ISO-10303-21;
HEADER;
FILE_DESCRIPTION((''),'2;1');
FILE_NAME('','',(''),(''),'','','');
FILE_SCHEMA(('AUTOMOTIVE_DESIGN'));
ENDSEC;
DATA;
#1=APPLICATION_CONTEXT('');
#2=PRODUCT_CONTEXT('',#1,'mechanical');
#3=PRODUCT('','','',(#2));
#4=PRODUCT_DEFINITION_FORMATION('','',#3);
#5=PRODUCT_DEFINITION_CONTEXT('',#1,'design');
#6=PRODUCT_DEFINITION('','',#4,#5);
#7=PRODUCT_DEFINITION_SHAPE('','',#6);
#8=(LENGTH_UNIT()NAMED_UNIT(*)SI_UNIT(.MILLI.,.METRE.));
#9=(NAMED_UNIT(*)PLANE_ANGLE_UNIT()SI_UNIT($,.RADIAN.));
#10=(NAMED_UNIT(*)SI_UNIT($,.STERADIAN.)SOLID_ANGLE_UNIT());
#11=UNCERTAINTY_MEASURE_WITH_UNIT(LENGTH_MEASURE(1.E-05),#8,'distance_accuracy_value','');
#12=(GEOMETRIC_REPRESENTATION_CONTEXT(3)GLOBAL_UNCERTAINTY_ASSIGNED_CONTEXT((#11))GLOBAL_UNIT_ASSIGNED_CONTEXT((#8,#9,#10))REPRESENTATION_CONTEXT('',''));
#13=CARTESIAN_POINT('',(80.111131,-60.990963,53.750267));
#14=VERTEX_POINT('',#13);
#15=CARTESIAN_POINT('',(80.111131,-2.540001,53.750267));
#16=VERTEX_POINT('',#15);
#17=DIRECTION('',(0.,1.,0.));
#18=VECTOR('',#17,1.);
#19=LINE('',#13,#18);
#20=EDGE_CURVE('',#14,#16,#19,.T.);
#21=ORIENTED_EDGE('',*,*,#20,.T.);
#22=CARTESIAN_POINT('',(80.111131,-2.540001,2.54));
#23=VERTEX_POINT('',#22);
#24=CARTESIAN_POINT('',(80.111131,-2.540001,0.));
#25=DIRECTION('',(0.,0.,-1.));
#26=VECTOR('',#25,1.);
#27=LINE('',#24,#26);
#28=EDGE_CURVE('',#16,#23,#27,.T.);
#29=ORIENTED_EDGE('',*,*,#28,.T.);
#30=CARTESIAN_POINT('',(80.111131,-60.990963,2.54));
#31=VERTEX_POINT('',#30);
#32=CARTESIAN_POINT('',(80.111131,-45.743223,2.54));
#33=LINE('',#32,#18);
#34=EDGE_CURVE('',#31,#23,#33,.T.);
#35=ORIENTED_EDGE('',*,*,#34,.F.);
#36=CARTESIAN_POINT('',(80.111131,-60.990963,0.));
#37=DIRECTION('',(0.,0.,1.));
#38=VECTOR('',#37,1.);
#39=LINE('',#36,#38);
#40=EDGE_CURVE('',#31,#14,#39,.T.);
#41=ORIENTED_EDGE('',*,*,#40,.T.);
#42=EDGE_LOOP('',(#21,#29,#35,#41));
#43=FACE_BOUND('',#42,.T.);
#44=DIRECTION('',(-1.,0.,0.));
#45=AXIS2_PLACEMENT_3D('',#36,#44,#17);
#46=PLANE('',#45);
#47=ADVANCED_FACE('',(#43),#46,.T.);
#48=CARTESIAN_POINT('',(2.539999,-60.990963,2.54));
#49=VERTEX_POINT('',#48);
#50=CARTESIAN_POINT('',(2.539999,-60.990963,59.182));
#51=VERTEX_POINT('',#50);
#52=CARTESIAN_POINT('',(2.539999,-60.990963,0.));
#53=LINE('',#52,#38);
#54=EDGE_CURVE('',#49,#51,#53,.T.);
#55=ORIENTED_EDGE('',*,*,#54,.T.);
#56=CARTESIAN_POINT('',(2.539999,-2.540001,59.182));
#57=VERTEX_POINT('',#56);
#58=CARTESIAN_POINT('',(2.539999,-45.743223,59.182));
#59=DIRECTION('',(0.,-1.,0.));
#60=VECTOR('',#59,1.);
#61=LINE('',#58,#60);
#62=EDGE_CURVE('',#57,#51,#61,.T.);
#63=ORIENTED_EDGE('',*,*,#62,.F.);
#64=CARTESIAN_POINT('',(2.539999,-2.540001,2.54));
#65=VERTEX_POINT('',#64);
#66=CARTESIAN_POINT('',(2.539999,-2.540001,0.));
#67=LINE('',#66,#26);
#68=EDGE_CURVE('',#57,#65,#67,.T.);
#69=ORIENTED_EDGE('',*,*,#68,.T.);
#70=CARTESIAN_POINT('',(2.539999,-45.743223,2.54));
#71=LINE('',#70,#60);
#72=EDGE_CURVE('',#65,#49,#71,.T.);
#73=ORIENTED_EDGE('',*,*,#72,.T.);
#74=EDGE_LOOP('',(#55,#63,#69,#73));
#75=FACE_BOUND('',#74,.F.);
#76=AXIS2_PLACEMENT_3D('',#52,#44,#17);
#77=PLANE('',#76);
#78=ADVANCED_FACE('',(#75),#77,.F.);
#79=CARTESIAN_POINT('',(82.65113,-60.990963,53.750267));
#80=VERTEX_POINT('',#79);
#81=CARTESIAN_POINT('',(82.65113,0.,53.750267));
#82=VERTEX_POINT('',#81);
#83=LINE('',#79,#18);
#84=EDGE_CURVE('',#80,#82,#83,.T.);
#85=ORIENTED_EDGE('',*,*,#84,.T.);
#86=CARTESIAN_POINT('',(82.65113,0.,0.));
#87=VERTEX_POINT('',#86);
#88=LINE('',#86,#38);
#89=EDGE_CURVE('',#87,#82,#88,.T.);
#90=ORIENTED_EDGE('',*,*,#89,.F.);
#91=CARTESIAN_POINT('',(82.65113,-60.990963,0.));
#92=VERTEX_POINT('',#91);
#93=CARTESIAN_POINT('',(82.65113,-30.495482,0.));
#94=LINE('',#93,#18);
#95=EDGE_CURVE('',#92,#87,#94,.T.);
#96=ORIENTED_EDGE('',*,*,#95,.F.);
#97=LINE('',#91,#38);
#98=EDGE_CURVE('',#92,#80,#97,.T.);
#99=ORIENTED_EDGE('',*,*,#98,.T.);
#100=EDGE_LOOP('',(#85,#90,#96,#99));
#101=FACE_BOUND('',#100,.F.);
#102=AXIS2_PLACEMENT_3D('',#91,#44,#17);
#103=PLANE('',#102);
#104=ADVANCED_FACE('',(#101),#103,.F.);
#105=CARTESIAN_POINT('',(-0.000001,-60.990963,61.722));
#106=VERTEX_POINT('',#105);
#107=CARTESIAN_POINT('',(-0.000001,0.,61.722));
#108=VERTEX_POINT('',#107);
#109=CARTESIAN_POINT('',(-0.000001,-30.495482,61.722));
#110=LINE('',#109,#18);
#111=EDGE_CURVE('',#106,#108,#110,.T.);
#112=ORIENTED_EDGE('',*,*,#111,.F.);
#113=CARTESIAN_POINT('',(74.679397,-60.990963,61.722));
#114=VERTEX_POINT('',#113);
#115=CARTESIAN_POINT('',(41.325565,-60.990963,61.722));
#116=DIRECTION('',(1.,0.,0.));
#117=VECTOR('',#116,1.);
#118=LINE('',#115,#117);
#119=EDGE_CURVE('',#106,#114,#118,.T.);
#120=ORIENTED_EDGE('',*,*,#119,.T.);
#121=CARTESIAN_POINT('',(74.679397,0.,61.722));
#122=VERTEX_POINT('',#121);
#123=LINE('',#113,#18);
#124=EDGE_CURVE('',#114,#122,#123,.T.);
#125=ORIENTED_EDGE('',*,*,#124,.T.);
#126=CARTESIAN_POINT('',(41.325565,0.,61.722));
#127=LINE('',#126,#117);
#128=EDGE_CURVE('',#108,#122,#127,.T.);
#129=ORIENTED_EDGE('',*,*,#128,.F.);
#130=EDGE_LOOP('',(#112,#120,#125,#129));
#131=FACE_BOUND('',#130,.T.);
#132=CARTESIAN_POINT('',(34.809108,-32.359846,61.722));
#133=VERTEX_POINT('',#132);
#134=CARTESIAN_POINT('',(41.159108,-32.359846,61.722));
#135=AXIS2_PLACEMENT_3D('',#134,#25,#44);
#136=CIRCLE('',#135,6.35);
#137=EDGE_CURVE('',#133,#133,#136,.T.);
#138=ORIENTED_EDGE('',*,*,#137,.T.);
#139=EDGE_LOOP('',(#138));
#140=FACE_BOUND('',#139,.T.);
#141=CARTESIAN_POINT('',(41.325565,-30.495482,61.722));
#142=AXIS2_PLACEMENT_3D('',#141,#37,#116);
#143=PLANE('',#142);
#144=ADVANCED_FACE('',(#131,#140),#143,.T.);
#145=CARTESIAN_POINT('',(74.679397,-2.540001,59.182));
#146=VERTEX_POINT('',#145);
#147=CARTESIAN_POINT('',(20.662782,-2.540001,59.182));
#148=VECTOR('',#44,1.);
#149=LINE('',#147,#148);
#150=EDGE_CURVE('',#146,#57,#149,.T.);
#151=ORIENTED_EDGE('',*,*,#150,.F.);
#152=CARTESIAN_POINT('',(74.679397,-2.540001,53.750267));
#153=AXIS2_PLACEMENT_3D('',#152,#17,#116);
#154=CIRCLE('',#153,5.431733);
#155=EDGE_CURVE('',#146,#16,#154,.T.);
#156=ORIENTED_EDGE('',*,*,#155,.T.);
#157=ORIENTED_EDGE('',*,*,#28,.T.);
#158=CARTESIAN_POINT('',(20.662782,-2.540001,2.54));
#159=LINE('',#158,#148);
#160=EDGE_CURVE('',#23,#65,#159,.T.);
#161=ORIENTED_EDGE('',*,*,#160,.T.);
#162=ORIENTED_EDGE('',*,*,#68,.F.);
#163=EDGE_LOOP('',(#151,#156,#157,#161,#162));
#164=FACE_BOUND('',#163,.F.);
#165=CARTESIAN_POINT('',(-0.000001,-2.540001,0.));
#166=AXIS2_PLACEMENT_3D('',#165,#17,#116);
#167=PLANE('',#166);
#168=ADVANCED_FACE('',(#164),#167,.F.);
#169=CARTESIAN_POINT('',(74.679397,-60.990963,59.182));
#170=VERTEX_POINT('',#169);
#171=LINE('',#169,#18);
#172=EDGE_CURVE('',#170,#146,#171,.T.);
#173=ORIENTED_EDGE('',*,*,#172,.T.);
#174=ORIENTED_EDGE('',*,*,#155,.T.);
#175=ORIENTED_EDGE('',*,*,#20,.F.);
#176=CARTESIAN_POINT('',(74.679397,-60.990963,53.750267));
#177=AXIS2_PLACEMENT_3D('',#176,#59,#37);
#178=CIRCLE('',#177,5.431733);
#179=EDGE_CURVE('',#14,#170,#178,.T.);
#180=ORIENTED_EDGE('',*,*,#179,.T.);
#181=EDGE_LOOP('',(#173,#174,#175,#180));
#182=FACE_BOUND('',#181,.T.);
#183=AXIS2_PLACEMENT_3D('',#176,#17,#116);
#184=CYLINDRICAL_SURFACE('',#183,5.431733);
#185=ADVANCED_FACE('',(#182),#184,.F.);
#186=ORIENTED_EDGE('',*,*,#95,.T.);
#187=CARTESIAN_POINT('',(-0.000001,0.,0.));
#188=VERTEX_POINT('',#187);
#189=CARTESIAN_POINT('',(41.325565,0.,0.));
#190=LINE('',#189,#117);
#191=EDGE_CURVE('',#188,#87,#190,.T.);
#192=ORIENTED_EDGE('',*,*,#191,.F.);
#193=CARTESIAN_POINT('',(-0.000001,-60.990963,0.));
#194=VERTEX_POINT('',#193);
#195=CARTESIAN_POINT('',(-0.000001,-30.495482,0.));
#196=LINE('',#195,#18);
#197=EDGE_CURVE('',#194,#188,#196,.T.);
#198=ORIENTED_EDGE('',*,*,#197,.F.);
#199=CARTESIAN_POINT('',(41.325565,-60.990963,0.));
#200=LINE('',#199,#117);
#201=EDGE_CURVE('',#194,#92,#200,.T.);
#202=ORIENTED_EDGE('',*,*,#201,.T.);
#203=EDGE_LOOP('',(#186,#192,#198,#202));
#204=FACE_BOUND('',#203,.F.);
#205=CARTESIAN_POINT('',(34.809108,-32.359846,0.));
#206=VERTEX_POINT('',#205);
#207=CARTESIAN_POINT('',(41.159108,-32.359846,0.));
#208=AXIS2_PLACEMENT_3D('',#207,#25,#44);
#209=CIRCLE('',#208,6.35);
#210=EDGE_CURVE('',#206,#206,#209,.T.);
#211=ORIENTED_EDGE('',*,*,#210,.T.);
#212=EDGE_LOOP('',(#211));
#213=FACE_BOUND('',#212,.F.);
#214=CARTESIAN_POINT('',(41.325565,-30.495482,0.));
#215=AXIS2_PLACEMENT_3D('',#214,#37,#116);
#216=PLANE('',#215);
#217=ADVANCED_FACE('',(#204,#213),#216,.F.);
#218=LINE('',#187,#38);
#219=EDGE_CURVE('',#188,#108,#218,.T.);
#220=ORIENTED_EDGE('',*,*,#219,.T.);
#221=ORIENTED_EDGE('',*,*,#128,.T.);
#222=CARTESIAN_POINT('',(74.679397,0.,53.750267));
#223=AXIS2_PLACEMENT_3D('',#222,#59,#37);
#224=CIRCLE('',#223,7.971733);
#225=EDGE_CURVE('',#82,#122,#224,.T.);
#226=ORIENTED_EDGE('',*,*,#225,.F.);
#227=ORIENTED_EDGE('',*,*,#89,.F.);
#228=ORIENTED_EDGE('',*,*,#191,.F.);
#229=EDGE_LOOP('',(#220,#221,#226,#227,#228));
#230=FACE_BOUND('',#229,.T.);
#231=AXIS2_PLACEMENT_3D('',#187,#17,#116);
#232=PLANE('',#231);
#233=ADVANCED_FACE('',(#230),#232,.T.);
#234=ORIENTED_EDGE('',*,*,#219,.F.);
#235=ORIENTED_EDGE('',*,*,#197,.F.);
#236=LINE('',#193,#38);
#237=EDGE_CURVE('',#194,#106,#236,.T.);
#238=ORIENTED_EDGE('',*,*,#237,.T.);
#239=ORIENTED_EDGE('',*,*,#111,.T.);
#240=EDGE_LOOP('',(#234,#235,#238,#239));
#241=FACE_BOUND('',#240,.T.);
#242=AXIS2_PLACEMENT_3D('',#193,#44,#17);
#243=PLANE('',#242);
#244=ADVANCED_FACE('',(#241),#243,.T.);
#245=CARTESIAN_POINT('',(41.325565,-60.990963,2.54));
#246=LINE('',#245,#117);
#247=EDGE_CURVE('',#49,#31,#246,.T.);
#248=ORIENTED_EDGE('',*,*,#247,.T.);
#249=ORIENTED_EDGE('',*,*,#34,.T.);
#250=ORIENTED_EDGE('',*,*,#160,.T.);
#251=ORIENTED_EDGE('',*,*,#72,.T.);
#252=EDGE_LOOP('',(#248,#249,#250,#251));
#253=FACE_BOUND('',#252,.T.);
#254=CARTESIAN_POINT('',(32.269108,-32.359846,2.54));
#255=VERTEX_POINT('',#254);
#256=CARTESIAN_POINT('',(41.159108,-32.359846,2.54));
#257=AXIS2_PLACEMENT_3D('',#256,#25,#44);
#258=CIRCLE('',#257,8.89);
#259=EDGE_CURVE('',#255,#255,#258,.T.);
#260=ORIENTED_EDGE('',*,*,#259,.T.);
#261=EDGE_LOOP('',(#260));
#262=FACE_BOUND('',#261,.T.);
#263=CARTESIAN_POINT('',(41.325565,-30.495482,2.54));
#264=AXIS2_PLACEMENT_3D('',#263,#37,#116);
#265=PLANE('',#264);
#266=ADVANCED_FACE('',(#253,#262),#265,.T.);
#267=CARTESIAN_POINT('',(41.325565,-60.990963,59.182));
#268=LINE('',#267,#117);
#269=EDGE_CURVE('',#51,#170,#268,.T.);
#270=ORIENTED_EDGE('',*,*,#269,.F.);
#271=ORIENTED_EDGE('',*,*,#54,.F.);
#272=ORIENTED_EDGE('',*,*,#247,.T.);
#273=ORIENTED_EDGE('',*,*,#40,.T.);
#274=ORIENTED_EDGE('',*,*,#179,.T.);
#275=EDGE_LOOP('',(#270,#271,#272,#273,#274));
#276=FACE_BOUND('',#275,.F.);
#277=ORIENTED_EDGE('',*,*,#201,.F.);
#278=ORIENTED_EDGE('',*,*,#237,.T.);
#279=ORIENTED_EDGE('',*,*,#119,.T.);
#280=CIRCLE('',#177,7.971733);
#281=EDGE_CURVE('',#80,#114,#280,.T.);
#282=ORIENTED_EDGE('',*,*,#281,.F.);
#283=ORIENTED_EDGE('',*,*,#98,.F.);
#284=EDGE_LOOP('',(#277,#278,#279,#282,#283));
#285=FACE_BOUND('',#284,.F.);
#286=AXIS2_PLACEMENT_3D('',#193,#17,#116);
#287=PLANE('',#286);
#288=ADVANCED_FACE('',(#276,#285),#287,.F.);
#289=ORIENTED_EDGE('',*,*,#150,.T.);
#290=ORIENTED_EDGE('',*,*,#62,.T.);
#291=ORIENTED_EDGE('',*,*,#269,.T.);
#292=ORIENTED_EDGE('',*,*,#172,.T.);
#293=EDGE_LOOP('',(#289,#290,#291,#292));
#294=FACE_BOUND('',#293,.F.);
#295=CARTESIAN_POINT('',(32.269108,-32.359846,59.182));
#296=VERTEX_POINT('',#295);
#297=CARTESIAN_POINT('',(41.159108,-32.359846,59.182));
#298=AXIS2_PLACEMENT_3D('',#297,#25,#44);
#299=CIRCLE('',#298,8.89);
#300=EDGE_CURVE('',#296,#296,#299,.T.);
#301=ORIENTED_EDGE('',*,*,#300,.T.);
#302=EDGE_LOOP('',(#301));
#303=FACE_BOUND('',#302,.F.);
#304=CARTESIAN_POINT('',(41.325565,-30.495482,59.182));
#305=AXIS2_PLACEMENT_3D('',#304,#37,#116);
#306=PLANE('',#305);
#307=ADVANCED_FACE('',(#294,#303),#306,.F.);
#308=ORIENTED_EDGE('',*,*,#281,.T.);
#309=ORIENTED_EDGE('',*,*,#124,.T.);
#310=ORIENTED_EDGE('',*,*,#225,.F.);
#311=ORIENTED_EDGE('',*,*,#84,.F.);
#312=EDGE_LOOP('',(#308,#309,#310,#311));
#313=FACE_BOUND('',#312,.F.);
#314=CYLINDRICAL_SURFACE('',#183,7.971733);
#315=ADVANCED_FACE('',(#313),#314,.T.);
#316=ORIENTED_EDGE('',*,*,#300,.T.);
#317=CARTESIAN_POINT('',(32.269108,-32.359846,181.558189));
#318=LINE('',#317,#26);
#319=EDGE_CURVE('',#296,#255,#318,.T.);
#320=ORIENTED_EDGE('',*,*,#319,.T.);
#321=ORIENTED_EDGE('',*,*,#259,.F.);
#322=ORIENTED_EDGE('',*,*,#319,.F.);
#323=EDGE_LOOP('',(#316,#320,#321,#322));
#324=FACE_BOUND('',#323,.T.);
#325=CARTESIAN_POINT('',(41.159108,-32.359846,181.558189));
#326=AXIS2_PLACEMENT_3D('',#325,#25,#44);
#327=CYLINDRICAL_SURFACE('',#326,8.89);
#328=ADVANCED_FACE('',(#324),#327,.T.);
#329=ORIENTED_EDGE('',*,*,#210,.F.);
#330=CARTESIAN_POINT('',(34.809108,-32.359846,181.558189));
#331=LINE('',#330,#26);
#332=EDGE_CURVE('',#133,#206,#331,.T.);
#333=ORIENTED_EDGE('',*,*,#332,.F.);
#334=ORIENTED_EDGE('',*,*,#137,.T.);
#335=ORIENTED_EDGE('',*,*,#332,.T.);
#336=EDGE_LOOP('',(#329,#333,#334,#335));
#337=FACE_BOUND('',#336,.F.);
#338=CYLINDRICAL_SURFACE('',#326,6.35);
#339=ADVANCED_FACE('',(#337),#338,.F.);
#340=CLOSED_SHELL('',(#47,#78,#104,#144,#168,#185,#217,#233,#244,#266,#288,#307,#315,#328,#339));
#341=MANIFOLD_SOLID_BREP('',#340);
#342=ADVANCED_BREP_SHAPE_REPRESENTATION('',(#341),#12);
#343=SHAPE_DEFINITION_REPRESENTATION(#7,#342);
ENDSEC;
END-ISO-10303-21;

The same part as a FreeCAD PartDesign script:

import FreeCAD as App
import Part
import Sketcher

V = App.Vector
Q = App.Units.Quantity


def edges_at(feature, points):
    """Names of the edges that pass closest to the given points."""
    edges = feature.Shape.Edges
    near = lambda p: min(range(len(edges)), key=lambda i: edges[i].distToShape(Part.Vertex(*p))[0])
    return sorted({f"Edge{near(p) + 1}" for p in points})


def faces_at(feature, points):
    """Names of the faces that lie closest to the given points."""
    faces = feature.Shape.Faces
    near = lambda p: min(range(len(faces)), key=lambda i: faces[i].distToShape(Part.Vertex(*p))[0])
    return sorted({f"Face{near(p) + 1}" for p in points})

doc = App.newDocument("Part")
body = doc.addObject("PartDesign::Body", "Body")

sketch1 = doc.addObject("Sketcher::SketchObject", "Sketch")
body.addObject(sketch1)
sketch1.AttachmentSupport = (doc.XY_Plane, [""])
sketch1.MapMode = "FlatFace"
sketch1.addGeometry([
    Part.LineSegment(V(0, 0, 0), V(0, -60.990963, 0)),
    Part.LineSegment(V(0, -60.990963, 0), V(82.65113, -60.990963, 0)),
    Part.LineSegment(V(82.65113, -60.990963, 0), V(82.65113, 0, 0)),
    Part.LineSegment(V(82.65113, 0, 0), V(0, 0, 0)),
], False)
sketch1.addConstraint([
    Sketcher.Constraint("Coincident", 0, 2, 1, 1),
    Sketcher.Constraint("Coincident", 1, 2, 2, 1),
    Sketcher.Constraint("Coincident", 2, 2, 3, 1),
    Sketcher.Constraint("Coincident", 3, 2, 0, 1),
    Sketcher.Constraint("Vertical", 0),
    Sketcher.Constraint("Horizontal", 1),
    Sketcher.Constraint("Vertical", 2),
    Sketcher.Constraint("Horizontal", 3),
    Sketcher.Constraint("Coincident", 3, 2, -1, 1),
    Sketcher.Constraint("DistanceX", 1, 1, 1, 2, Q("82.651131 mm")),
    Sketcher.Constraint("DistanceY", 0, 2, 0, 1, Q("60.990963 mm")),
])
pad1 = doc.addObject("PartDesign::Pad", "Pad")
body.addObject(pad1)
pad1.Profile = sketch1
pad1.Length = Q("2.43 in")
doc.recompute()

fillet = doc.addObject("PartDesign::Fillet", "Fillet")
body.addObject(fillet)
fillet.Base = (pad1, edges_at(pad1, [(82.651, -30.495, 61.722)]))
fillet.Radius = 7.971733

sketch2 = doc.addObject("Sketcher::SketchObject", "Sketch001")
body.addObject(sketch2)
sketch2.AttachmentSupport = (doc.XY_Plane, [""])
sketch2.MapMode = "FlatFace"
sketch2.AttachmentOffset = App.Placement(V(0, 0, 2.43 * 25.4), App.Rotation())
sketch2.addGeometry(Part.Circle(V(41.159108, -32.359846, 0), V(0, 0, 1), 6.35), False)
sketch2.addConstraint([
    Sketcher.Constraint("Diameter", 0, Q("0.5 in")),
    Sketcher.Constraint("DistanceX", -1, 1, 0, 3, Q("41.159108 mm")),
    Sketcher.Constraint("DistanceY", 0, 3, -1, 1, Q("32.359846 mm")),
])
doc.recompute()
hole = doc.addObject("PartDesign::Hole", "Hole")
body.addObject(hole)
hole.Profile = sketch2
hole.ThreadType = "None"
hole.Diameter = Q("0.5 in")
hole.DepthType = "ThroughAll"
doc.recompute()

thickness = doc.addObject("PartDesign::Thickness", "Thickness")
body.addObject(thickness)
thickness.Base = (hole, faces_at(hole, [(41.326, -60.991, 30.861)]))
thickness.Value = Q("0.1 in")
thickness.Reversed = True
thickness.Join = "Arc"

doc.recompute()
